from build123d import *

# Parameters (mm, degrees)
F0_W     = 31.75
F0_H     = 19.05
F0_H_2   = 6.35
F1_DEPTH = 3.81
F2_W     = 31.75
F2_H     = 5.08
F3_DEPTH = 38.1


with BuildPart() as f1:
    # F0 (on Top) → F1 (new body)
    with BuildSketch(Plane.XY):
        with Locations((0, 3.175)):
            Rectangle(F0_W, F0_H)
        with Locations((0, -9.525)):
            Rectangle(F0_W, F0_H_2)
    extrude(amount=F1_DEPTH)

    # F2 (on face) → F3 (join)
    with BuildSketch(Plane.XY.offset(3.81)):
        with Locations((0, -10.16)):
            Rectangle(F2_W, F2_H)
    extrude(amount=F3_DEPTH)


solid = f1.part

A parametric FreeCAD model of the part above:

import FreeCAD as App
import Part
import Sketcher
from FreeCAD import Vector
Q = App.Units.Quantity

doc = App.newDocument("Part")
body = doc.addObject("PartDesign::Body", "Body")

# Sketch on XY plane
sketch1 = body.newObject("Sketcher::SketchObject", "Sketch")
sketch1.AttachmentSupport = (doc.getObject("XY_Plane"), [""])
sketch1.MapMode = "FlatFace"
sketch1.addGeometry([
    Part.LineSegment(Vector(-16, 13, 0), Vector(-16, -13, 0)),
    Part.LineSegment(Vector(-16, -13, 0), Vector(16, -13, 0)),
    Part.LineSegment(Vector(16, -13, 0), Vector(16, 13, 0)),
    Part.LineSegment(Vector(16, 13, 0), Vector(-16, 13, 0)),
], False)
sketch1.addConstraint([
    Sketcher.Constraint("Coincident", 0, 2, 1, 1),
    Sketcher.Constraint("Coincident", 1, 2, 2, 1),
    Sketcher.Constraint("Coincident", 2, 2, 3, 1),
    Sketcher.Constraint("Coincident", 3, 2, 0, 1),
    Sketcher.Constraint("Vertical", 0),
    Sketcher.Constraint("Horizontal", 1),
    Sketcher.Constraint("Vertical", 2),
    Sketcher.Constraint("Horizontal", 3),
    Sketcher.Constraint("Symmetric", 0, 2, 2, 2, -1, 1),
    Sketcher.Constraint("DistanceY", 0, 2, 0, 1, Q("1 in")),
    Sketcher.Constraint("DistanceX", 1, 1, 1, 2, Q("1.25 in")),
])
pad1 = body.newObject("PartDesign::Pad", "Pad")
pad1.Profile = sketch1
pad1.Length = Q("0.15 in")

# Sketch on XY plane
sketch2 = body.newObject("Sketcher::SketchObject", "Sketch001")
sketch2.AttachmentSupport = (doc.getObject("XY_Plane"), [""])
sketch2.MapMode = "FlatFace"
sketch2.AttachmentOffset = App.Placement(Vector(0, 0, 0.15 * 25.4), App.Rotation())
sketch2.addGeometry([
    Part.LineSegment(Vector(-16, -8, 0), Vector(-16, -13, 0)),
    Part.LineSegment(Vector(-16, -13, 0), Vector(16, -13, 0)),
    Part.LineSegment(Vector(16, -13, 0), Vector(16, -8, 0)),
    Part.LineSegment(Vector(16, -8, 0), Vector(-16, -8, 0)),
], False)
sketch2.addConstraint([
    Sketcher.Constraint("Coincident", 0, 2, 1, 1),
    Sketcher.Constraint("Coincident", 1, 2, 2, 1),
    Sketcher.Constraint("Coincident", 2, 2, 3, 1),
    Sketcher.Constraint("Coincident", 3, 2, 0, 1),
    Sketcher.Constraint("Vertical", 0),
    Sketcher.Constraint("Horizontal", 1),
    Sketcher.Constraint("Vertical", 2),
    Sketcher.Constraint("Horizontal", 3),
    Sketcher.Constraint("DistanceY", 0, 2, 0, 1, Q("0.2 in")),
    Sketcher.Constraint("DistanceX", 1, 1, 1, 2, Q("1.25 in")),
    Sketcher.Constraint("DistanceY", 0, 2, -1, 1, Q("0.5 in")),
    Sketcher.Constraint("DistanceX", 0, 2, -1, 1, Q("0.625 in")),
])
pad2 = body.newObject("PartDesign::Pad", "Pad001")
pad2.Profile = sketch2
pad2.Length = Q("1.5 in")

doc.recompute()
